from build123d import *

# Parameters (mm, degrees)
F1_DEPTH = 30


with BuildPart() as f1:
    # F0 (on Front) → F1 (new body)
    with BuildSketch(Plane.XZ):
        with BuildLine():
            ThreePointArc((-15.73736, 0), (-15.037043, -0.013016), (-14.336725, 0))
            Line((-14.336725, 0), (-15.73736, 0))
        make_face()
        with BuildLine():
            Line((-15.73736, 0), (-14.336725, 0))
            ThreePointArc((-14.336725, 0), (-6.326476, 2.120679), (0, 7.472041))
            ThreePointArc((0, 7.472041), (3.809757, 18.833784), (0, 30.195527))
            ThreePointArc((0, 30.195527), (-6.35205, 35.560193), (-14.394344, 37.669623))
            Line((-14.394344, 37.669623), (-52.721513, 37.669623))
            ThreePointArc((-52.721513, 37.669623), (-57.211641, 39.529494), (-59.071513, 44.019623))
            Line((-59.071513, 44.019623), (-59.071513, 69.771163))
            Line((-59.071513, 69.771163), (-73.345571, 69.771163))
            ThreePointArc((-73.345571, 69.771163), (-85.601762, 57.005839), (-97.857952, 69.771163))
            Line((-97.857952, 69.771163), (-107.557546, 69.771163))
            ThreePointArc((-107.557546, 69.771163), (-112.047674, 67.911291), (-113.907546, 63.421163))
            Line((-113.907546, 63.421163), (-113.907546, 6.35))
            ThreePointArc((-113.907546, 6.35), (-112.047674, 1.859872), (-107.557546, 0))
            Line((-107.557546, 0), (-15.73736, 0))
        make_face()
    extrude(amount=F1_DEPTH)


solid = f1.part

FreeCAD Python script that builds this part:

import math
import FreeCAD as App
import Part
import Sketcher
from FreeCAD import Vector
Q = App.Units.Quantity

doc = App.newDocument("Part")
body = doc.addObject("PartDesign::Body", "Body")

# Sketch on XZ plane
sketch1 = doc.addObject("Sketcher::SketchObject", "Sketch")
body.addObject(sketch1)
sketch1.AttachmentSupport = (doc.XZ_Plane, [""])
sketch1.MapMode = "FlatFace"
sketch1.addGeometry([
    Part.ArcOfCircle(Part.Circle(Vector(-15.037043, 18.833558, 0), Vector(0, 0, 1), 18.846574), math.radians(-92.129537), math.radians(-87.870463)),  # 0
    Part.ArcOfCircle(Part.Circle(Vector(-15.037044, 18.833786, 0), Vector(0, 0, 1), 18.846802), math.radians(-87.870484), math.radians(-37.074099)),  # 1
    Part.ArcOfCircle(Part.Circle(Vector(-15.037042, 18.833784, 0), Vector(0, 0, 1), 18.846799), math.radians(-37.074097), math.radians(37.074097)),  # 2
    Part.ArcOfCircle(Part.Circle(Vector(-15.037046, 18.83378, 0), Vector(0, 0, 1), 18.846805), math.radians(37.0741), math.radians(88.045756)),  # 3
    Part.LineSegment(Vector(-14.394344, 37.669623, 0), Vector(-52.721513, 37.669623, 0)),  # 4
    Part.ArcOfCircle(Part.Circle(Vector(-52.721514, 44.019621, 0), Vector(0, 0, 1), 6.349998), math.radians(179.999986), math.radians(270.000014)),  # 5
    Part.LineSegment(Vector(-59.071513, 44.019623, 0), Vector(-59.071513, 69.771163, 0)),  # 6
    Part.LineSegment(Vector(-59.071513, 69.771163, 0), Vector(-73.345571, 69.771163, 0)),  # 7
    Part.ArcOfCircle(Part.Circle(Vector(-85.601761, 69.272183, 0), Vector(0, 0, 1), 12.266344), math.radians(177.668632), math.radians(362.331368)),  # 8
    Part.LineSegment(Vector(-97.857952, 69.771163, 0), Vector(-107.557546, 69.771163, 0)),  # 9
    Part.ArcOfCircle(Part.Circle(Vector(-107.557546, 63.421163, 0), Vector(0, 0, 1), 6.35), math.radians(90.000002), math.radians(179.999998)),  # 10
    Part.LineSegment(Vector(-113.907546, 63.421163, 0), Vector(-113.907546, 6.35, 0)),  # 11
    Part.ArcOfCircle(Part.Circle(Vector(-107.557546, 6.35, 0), Vector(0, 0, 1), 6.35), math.radians(-179.999998), math.radians(-90.000002)),  # 12
    Part.LineSegment(Vector(-107.557546, 0, 0), Vector(-15.73736, 0, 0)),  # 13
], False)
sketch1.addConstraint([
    Sketcher.Constraint("Coincident", 0, 2, 1, 1),
    Sketcher.Constraint("Coincident", 1, 2, 2, 1),
    Sketcher.Constraint("Coincident", 2, 2, 3, 1),
    Sketcher.Constraint("Coincident", 3, 2, 4, 1),
    Sketcher.Constraint("Coincident", 4, 2, 5, 2),
    Sketcher.Constraint("Coincident", 5, 1, 6, 1),
    Sketcher.Constraint("Coincident", 6, 2, 7, 1),
    Sketcher.Constraint("Coincident", 7, 2, 8, 2),
    Sketcher.Constraint("Coincident", 8, 1, 9, 1),
    Sketcher.Constraint("Coincident", 9, 2, 10, 1),
    Sketcher.Constraint("Coincident", 10, 2, 11, 1),
    Sketcher.Constraint("Coincident", 11, 2, 12, 1),
    Sketcher.Constraint("Coincident", 12, 2, 13, 1),
    Sketcher.Constraint("Coincident", 13, 2, 0, 1),
    Sketcher.Constraint("Horizontal", 4),
    Sketcher.Constraint("Vertical", 6),
    Sketcher.Constraint("Horizontal", 7),
    Sketcher.Constraint("Horizontal", 9),
    Sketcher.Constraint("Vertical", 11),
    Sketcher.Constraint("Horizontal", 13),
    Sketcher.Constraint("Coincident", 2, 3, 1, 3),
    Sketcher.Constraint("Coincident", 3, 3, 1, 3),
    Sketcher.Constraint("PointOnObject", 0, 2, -1),
    Sketcher.Constraint("PointOnObject", 1, 2, -2),
    Sketcher.Constraint("PointOnObject", 2, 2, -2),
    Sketcher.Constraint("PointOnObject", 12, 2, -1),
    Sketcher.Constraint("Radius", 5, Q("0.2499999 in")),
    Sketcher.Constraint("Radius", 10, Q("0.25 in")),
    Sketcher.Constraint("Radius", 12, Q("0.25 in")),
    Sketcher.Constraint("Radius", 1, Q("0.7420001 in")),
    Sketcher.Constraint("DistanceY", -1, 1, 11, 2, Q("0.25 in")),
    Sketcher.Constraint("DistanceX", 5, 1, 4, 2, Q("0.25 in")),
    Sketcher.Constraint("DistanceY", 4, 2, 5, 1, Q("0.25 in")),
    Sketcher.Constraint("DistanceY", 10, 3, 6, 2, Q("0.25 in")),
    Sketcher.Constraint("DistanceX", 10, 2, 9, 2, Q("0.25 in")),
    Sketcher.Constraint("DistanceY", 10, 2, 9, 2, Q("0.25 in")),
    Sketcher.Constraint("DistanceX", 11, 2, 12, 2, Q("0.25 in")),
    Sketcher.Constraint("Radius", 0, Q("18.846574 mm")),
    Sketcher.Constraint("Radius", 8, Q("12.266344 mm")),
    Sketcher.Constraint("DistanceX", 4, 2, 4, 1, Q("38.327169 mm")),
    Sketcher.Constraint("DistanceX", 7, 2, 7, 1, Q("14.274058 mm")),
    Sketcher.Constraint("DistanceY", 6, 1, 6, 2, Q("25.75154 mm")),
    Sketcher.Constraint("DistanceY", 2, 3, 8, 3, Q("50.438399 mm")),
    Sketcher.Constraint("DistanceX", 10, 3, 1, 3, Q("92.520502 mm")),
    Sketcher.Constraint("DistanceX", 1, 3, 3, 2, Q("0.6427 mm")),
    Sketcher.Constraint("DistanceX", 0, 3, 3, 2, Q("0.642699 mm")),
    Sketcher.Constraint("DistanceX", 13, 1, 13, 2, Q("91.820186 mm")),
    Sketcher.Constraint("DistanceX", 8, 3, -1, 1, Q("85.601761 mm")),
])
pad1 = doc.addObject("PartDesign::Pad", "Pad")
body.addObject(pad1)
pad1.Profile = sketch1
pad1.Length = 30

doc.recompute()
